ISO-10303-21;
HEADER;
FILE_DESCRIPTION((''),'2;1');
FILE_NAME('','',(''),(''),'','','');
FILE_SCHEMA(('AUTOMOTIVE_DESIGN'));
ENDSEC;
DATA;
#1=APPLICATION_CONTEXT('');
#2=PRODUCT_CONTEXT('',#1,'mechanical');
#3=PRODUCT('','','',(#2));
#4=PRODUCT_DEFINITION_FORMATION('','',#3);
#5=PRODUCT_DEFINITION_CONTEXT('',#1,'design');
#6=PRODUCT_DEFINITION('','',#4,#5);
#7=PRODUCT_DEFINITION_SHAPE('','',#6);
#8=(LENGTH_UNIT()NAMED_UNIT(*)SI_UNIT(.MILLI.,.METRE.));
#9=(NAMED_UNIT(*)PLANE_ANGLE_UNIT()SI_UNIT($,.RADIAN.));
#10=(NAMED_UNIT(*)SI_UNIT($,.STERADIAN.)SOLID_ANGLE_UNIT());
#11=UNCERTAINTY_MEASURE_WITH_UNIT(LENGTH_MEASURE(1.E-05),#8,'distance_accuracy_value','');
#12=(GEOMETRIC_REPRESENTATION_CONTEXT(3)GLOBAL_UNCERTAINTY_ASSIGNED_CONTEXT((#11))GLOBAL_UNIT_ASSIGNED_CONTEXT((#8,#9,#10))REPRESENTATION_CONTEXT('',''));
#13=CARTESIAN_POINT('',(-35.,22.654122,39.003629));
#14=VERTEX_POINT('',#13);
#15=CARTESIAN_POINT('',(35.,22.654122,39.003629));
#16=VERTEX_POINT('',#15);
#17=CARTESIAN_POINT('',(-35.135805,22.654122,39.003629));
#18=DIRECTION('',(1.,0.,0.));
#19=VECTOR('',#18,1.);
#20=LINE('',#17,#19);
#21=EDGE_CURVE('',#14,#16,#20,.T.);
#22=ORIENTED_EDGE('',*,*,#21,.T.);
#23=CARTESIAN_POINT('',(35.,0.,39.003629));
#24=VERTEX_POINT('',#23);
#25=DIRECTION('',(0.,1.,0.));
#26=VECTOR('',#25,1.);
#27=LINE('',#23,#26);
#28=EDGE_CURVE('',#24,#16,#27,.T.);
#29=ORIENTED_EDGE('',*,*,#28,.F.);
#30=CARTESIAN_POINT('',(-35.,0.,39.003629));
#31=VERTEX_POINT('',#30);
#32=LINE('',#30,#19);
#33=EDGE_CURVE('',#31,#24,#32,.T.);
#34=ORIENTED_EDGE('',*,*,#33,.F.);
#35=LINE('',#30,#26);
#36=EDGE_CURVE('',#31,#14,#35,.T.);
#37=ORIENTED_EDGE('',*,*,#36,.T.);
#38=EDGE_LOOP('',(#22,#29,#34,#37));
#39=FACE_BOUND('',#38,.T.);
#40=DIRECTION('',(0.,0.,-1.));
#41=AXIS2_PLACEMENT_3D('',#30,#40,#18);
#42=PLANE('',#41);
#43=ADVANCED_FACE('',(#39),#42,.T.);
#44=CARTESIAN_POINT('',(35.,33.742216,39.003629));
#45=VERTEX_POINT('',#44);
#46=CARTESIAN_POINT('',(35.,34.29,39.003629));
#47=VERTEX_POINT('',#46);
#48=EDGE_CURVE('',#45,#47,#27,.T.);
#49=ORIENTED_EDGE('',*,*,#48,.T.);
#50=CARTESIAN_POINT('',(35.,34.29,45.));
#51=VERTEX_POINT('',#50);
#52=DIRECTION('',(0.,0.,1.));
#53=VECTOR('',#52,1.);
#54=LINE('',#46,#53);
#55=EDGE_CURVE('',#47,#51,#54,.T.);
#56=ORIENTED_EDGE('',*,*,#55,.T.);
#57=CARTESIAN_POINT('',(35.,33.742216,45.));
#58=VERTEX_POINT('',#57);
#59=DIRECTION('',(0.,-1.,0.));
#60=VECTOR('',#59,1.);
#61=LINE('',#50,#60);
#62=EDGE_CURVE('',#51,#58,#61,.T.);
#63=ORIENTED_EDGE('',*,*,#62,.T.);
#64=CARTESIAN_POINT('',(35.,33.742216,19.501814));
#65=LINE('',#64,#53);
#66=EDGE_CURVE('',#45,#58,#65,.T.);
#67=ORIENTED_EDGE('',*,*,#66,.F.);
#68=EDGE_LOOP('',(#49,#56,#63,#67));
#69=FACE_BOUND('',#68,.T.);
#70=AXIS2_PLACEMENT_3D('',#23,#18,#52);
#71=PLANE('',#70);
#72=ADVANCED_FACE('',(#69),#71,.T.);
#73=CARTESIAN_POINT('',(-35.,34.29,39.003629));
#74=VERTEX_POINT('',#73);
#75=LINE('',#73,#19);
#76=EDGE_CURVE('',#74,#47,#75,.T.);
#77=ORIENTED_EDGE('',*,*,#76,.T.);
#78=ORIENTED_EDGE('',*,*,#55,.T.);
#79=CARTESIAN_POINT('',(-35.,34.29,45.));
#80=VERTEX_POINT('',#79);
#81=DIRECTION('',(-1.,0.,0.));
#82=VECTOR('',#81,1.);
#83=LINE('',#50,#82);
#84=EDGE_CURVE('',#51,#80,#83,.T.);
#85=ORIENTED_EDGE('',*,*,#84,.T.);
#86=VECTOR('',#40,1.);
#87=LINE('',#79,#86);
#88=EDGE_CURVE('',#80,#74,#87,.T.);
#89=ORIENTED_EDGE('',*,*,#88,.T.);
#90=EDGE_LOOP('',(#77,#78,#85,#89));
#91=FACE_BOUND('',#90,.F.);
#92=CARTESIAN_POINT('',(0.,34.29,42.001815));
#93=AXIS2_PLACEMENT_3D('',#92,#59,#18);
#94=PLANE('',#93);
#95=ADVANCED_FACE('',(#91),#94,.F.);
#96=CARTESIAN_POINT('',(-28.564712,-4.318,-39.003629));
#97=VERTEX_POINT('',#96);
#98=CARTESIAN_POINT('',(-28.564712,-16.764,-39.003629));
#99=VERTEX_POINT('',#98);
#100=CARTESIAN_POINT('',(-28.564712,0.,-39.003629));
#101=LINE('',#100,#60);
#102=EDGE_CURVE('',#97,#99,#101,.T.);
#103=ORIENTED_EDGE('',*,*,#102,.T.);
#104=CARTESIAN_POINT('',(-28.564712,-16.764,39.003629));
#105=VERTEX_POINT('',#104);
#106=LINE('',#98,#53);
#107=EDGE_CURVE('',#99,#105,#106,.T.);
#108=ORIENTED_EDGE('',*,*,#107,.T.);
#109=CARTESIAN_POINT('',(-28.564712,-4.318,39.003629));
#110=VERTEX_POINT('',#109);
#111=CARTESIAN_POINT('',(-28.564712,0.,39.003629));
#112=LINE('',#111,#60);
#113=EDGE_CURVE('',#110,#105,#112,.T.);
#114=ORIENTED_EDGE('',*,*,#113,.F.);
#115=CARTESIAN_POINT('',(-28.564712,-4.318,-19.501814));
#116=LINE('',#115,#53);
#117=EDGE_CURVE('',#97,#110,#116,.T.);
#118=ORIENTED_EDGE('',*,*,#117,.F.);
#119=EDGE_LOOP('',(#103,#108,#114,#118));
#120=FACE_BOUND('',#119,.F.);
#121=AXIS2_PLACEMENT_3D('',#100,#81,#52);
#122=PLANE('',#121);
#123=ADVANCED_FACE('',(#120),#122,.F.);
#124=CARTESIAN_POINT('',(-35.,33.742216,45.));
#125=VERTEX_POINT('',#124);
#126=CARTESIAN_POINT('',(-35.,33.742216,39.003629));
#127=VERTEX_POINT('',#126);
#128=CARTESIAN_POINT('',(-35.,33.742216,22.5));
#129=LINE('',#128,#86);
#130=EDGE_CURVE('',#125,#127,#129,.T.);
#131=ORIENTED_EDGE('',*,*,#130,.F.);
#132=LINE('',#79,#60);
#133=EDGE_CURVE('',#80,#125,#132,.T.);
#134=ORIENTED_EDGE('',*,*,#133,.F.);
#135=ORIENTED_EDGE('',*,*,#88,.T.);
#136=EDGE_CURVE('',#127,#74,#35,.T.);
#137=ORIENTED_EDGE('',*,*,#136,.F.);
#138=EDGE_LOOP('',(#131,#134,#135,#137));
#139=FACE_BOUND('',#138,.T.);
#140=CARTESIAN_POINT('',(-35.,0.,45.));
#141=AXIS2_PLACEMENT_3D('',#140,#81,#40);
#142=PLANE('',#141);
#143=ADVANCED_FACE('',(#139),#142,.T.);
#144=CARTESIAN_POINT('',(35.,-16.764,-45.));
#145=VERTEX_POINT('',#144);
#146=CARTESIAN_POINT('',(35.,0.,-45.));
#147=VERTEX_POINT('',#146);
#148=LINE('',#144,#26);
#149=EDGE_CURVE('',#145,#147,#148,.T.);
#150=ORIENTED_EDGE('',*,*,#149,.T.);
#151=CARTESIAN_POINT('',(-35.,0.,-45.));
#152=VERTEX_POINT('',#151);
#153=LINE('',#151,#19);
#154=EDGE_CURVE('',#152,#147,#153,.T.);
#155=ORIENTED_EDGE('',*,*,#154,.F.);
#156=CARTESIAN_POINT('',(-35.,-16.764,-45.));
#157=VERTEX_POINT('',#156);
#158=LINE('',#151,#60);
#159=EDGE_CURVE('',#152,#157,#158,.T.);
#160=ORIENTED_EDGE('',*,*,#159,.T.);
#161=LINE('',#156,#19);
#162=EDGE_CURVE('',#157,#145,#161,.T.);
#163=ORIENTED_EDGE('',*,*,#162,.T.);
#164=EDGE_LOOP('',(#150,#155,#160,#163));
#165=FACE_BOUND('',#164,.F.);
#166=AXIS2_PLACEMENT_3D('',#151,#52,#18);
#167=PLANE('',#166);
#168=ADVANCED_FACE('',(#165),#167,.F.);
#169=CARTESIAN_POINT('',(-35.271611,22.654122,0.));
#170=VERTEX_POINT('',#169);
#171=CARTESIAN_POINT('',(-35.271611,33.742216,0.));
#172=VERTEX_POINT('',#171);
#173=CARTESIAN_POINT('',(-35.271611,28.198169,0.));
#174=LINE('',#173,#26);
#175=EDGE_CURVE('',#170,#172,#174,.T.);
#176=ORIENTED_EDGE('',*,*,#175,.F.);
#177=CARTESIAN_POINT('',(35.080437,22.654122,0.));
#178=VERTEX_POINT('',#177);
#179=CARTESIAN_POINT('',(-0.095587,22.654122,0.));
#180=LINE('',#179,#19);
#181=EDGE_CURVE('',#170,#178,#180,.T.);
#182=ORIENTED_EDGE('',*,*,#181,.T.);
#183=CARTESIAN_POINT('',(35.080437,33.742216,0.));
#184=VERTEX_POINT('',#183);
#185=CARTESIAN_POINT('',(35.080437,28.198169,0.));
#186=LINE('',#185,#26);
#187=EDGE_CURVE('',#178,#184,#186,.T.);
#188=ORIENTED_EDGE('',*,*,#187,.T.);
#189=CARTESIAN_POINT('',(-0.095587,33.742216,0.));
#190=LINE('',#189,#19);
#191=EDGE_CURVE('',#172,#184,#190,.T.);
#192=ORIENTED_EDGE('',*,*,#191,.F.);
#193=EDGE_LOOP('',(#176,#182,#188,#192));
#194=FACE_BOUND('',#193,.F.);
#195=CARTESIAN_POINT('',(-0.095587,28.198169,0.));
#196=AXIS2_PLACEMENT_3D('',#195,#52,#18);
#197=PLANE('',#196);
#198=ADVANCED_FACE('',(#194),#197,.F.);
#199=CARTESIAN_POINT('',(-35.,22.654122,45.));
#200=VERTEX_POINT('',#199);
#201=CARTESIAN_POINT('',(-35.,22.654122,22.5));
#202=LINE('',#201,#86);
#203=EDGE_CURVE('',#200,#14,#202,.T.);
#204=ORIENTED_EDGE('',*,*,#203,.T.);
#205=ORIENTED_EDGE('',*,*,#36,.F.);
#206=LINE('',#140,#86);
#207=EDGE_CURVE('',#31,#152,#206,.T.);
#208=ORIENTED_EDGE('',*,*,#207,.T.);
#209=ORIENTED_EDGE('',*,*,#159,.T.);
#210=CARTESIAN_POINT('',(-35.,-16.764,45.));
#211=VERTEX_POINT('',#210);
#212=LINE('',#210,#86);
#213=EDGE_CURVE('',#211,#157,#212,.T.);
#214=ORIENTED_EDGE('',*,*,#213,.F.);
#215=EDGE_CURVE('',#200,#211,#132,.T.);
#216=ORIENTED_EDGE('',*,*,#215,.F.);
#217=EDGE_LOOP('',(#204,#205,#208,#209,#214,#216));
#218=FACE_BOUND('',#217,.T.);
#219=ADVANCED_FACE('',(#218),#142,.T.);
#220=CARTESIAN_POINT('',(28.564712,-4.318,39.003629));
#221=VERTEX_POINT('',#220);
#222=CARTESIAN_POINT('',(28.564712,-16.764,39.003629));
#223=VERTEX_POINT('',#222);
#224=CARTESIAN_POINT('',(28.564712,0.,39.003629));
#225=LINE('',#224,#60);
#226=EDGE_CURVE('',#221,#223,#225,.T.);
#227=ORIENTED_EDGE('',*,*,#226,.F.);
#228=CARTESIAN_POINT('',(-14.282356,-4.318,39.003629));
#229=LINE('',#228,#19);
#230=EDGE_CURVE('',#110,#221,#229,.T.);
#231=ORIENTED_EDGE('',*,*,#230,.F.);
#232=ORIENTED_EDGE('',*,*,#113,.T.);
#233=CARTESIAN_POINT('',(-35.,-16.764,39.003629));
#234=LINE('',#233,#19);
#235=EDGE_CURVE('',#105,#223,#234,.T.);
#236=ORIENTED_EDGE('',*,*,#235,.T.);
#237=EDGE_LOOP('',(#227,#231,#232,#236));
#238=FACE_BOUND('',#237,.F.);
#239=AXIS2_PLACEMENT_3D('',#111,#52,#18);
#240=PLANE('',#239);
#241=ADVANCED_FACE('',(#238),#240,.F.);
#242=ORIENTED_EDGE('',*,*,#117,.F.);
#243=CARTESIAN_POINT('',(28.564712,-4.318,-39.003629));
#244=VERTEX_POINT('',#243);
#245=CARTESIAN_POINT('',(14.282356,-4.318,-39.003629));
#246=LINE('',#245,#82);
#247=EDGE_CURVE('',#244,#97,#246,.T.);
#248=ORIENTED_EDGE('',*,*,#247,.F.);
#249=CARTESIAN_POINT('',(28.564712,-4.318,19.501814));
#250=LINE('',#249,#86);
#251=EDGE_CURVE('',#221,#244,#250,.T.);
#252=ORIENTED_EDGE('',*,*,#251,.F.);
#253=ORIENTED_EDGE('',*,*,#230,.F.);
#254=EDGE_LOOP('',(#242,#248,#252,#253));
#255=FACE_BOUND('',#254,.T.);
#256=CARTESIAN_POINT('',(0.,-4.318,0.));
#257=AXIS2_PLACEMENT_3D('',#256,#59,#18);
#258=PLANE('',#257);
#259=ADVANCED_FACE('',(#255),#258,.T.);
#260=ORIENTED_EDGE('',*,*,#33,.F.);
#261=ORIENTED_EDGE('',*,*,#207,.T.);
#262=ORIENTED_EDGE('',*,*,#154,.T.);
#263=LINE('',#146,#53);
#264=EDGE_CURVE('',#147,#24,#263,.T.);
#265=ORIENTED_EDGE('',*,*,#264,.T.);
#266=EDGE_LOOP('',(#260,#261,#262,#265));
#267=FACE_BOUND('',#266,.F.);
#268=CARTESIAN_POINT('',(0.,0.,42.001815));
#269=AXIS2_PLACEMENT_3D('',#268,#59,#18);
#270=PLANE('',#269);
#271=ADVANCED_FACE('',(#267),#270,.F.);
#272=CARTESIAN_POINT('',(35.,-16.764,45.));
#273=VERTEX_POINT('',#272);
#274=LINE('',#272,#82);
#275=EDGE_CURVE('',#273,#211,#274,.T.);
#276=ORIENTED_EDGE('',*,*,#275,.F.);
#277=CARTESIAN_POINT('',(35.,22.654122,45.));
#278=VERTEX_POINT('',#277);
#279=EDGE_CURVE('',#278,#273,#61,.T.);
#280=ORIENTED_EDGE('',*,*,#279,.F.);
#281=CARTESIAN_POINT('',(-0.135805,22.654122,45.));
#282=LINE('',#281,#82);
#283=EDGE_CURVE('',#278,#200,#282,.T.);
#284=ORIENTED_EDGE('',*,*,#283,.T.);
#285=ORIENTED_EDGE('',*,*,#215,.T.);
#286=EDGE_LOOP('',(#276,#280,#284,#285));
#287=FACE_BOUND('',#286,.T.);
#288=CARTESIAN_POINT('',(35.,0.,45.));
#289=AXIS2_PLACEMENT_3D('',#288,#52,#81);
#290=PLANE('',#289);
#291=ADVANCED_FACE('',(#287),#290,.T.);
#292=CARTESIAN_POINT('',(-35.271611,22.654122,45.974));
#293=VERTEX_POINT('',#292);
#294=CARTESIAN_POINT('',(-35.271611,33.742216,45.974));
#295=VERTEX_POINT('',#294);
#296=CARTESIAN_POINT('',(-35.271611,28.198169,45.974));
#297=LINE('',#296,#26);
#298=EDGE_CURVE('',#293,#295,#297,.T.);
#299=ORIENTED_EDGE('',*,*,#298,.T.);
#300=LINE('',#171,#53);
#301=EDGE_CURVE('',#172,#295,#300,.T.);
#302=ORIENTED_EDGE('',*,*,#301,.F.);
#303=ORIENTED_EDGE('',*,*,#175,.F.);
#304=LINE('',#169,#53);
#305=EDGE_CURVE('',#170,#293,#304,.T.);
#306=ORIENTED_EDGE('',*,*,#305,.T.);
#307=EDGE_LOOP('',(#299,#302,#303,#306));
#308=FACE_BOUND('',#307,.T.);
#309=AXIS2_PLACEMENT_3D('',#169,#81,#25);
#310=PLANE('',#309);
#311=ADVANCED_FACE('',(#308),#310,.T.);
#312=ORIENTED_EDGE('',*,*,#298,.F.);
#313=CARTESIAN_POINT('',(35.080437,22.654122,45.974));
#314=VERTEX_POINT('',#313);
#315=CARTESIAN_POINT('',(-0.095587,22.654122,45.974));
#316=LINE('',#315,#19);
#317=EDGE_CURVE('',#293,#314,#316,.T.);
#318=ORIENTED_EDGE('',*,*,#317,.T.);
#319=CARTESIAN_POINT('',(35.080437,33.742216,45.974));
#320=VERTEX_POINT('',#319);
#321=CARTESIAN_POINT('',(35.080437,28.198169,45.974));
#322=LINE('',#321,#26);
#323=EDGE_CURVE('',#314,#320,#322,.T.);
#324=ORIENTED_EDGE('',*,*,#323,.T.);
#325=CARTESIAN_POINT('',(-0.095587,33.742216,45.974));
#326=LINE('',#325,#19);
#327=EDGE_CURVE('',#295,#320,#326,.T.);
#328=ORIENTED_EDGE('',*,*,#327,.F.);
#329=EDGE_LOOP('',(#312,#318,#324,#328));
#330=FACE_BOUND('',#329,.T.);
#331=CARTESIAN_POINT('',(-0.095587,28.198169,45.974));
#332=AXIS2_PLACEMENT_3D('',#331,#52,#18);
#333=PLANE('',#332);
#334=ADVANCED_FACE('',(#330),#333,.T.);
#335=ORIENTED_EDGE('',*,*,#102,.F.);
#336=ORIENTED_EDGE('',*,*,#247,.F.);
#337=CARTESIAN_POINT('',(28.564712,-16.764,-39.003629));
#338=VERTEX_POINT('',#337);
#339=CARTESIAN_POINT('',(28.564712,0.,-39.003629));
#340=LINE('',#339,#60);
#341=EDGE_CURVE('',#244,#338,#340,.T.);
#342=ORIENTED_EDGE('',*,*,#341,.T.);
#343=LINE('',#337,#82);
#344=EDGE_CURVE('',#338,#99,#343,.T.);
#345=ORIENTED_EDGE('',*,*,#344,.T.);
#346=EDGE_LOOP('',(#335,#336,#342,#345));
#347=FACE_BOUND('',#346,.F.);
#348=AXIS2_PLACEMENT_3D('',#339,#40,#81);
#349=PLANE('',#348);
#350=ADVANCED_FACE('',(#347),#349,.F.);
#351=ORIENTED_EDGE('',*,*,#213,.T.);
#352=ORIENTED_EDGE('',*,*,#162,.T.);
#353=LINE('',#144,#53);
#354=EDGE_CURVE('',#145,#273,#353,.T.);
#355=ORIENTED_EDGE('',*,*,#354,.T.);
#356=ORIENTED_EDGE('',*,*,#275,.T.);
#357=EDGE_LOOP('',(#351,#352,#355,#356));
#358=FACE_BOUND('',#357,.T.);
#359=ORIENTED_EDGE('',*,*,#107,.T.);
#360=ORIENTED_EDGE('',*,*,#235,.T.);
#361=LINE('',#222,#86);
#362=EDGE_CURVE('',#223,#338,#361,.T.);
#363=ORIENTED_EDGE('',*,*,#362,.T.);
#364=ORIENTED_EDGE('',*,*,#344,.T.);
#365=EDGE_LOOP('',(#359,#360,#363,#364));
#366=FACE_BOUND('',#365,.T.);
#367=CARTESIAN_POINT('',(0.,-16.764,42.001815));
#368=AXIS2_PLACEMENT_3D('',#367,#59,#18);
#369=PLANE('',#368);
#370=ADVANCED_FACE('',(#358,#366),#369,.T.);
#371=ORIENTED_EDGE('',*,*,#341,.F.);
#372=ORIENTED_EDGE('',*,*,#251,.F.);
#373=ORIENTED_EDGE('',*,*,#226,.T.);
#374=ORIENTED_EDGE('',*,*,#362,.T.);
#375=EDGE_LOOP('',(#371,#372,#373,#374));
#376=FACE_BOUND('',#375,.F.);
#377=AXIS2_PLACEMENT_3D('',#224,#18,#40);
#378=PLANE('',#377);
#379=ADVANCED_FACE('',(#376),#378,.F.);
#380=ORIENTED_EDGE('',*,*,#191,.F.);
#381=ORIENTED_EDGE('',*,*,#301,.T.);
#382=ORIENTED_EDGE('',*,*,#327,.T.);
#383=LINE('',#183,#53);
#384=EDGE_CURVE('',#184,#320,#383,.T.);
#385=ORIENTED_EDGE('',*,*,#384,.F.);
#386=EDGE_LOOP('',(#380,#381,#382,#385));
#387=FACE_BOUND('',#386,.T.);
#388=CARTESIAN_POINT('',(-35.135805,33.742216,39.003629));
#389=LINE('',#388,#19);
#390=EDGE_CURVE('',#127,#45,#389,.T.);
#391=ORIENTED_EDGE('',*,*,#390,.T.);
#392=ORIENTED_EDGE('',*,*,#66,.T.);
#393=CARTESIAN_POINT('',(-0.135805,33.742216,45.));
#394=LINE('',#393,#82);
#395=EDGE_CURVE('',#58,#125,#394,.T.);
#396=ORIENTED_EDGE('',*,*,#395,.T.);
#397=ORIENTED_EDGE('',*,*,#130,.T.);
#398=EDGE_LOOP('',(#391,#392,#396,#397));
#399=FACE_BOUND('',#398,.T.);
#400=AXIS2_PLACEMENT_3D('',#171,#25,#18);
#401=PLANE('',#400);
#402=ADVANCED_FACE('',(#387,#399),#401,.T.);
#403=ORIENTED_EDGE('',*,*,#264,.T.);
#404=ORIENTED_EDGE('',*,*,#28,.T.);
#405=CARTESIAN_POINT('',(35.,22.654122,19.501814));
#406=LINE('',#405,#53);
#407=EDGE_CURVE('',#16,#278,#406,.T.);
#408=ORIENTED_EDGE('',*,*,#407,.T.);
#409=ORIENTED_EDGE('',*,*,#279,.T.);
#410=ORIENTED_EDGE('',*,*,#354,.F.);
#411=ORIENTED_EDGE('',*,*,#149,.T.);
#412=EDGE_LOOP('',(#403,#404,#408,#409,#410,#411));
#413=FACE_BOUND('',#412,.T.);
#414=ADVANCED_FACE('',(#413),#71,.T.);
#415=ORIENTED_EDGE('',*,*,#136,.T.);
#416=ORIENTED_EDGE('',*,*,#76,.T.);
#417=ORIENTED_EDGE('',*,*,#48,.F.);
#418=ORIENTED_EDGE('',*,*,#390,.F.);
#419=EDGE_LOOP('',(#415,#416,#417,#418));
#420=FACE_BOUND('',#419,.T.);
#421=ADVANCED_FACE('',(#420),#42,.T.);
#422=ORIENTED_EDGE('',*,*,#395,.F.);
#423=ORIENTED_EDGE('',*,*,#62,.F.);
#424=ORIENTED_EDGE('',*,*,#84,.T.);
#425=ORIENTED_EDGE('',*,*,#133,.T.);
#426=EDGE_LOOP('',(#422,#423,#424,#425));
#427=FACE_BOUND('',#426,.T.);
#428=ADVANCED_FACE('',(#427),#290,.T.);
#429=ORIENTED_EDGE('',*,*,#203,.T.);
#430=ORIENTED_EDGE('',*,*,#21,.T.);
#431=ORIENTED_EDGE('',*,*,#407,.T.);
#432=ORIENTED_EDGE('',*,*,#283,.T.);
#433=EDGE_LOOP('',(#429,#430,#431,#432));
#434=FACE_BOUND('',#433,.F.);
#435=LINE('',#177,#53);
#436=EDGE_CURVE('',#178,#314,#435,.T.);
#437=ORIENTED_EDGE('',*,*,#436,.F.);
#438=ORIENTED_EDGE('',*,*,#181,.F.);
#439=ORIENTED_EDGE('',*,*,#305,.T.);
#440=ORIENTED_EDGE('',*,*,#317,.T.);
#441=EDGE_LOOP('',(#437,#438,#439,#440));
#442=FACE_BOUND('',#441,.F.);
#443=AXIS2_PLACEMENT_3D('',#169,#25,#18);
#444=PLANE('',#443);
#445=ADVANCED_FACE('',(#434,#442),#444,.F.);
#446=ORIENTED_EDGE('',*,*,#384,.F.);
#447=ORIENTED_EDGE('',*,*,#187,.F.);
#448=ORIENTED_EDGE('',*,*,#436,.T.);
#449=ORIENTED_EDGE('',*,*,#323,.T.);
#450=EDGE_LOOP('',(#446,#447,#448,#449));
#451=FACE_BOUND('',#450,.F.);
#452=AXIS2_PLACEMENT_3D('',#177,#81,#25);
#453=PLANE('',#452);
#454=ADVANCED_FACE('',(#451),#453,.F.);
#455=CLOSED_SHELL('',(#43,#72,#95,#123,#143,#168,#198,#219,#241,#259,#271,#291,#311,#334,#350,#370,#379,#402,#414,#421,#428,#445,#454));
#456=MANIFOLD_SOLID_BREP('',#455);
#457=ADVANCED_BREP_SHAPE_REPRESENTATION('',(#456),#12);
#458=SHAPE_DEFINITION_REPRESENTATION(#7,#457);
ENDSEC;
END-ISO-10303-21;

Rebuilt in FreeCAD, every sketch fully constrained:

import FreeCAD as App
import Part
import Sketcher
from FreeCAD import Vector
Q = App.Units.Quantity


def add_polygon(sketch, points):
    """Adds a closed chain of lines whose ends are joined by coincident constraints."""
    first, n = sketch.GeometryCount, len(points)
    for a, b in zip(points, points[1:] + points[:1]):
        sketch.addGeometry(Part.LineSegment(App.Vector(*a, 0), App.Vector(*b, 0)), False)
    for i in range(n):
        sketch.addConstraint(Sketcher.Constraint("Coincident", first + i, 2, first + (i + 1) % n, 1))

doc = App.newDocument("Part")
body = doc.addObject("PartDesign::Body", "Body")

# Sketch on XZ plane
sketch1 = body.newObject("Sketcher::SketchObject", "Sketch")
sketch1.AttachmentSupport = (doc.getObject("XZ_Plane"), [""])
sketch1.MapMode = "FlatFace"
add_polygon(sketch1, [(35, 45), (-35, 45), (-35, -45), (35, -45)])  # lines 0-3
add_polygon(sketch1, [(-29, 39), (29, 39), (29, -39), (-29, -39)])  # lines 4-7
sketch1.addConstraint(Sketcher.Constraint("Horizontal", 0))
sketch1.addConstraint(Sketcher.Constraint("Vertical", 1))
sketch1.addConstraint(Sketcher.Constraint("Horizontal", 2))
sketch1.addConstraint(Sketcher.Constraint("Vertical", 3))
sketch1.addConstraint(Sketcher.Constraint("Horizontal", 4))
sketch1.addConstraint(Sketcher.Constraint("Vertical", 5))
sketch1.addConstraint(Sketcher.Constraint("Horizontal", 6))
sketch1.addConstraint(Sketcher.Constraint("Vertical", 7))
sketch1.addConstraint(Sketcher.Constraint("Symmetric", 0, 2, 2, 2, -1, 1))
sketch1.addConstraint(Sketcher.Constraint("Symmetric", 4, 2, 6, 2, -1, 1))
sketch1.addConstraint(Sketcher.Constraint("DistanceX", 0, 2, 0, 1, 70.0))
sketch1.addConstraint(Sketcher.Constraint("DistanceY", 1, 2, 1, 1, 90.0))
sketch1.addConstraint(Sketcher.Constraint("DistanceX", 4, 1, 4, 2, 57.129424))
sketch1.addConstraint(Sketcher.Constraint("DistanceY", 5, 2, 5, 1, 78.007258))
pad1 = body.newObject("PartDesign::Pad", "Pad")
pad1.Profile = sketch1
pad1.Length = Q("0.66 in")

# Sketch on XZ plane
sketch2 = body.newObject("Sketcher::SketchObject", "Sketch001")
sketch2.AttachmentSupport = (doc.getObject("XZ_Plane"), [""])
sketch2.MapMode = "FlatFace"
add_polygon(sketch2, [(-35, 45), (-35, -45), (35, -45), (35, 45)])  # lines 0-3
sketch2.addConstraint(Sketcher.Constraint("Vertical", 0))
sketch2.addConstraint(Sketcher.Constraint("Horizontal", 1))
sketch2.addConstraint(Sketcher.Constraint("Vertical", 2))
sketch2.addConstraint(Sketcher.Constraint("Horizontal", 3))
sketch2.addConstraint(Sketcher.Constraint("Symmetric", 0, 2, 2, 2, -1, 1))
sketch2.addConstraint(Sketcher.Constraint("DistanceX", 1, 1, 1, 2, 70.0))
sketch2.addConstraint(Sketcher.Constraint("DistanceY", 0, 2, 0, 1, 90.0))
pad2 = body.newObject("PartDesign::Pad", "Pad001")
pad2.Profile = sketch2
pad2.Length = Q("0.17 in")

# Sketch on XZ plane
sketch3 = body.newObject("Sketcher::SketchObject", "Sketch002")
sketch3.AttachmentSupport = (doc.getObject("XZ_Plane"), [""])
sketch3.MapMode = "FlatFace"
add_polygon(sketch3, [(35, 39), (35, 45), (-35, 45), (-35, 39)])  # lines 0-3
sketch3.addConstraint(Sketcher.Constraint("Vertical", 0))
sketch3.addConstraint(Sketcher.Constraint("Horizontal", 1))
sketch3.addConstraint(Sketcher.Constraint("Vertical", 2))
sketch3.addConstraint(Sketcher.Constraint("Horizontal", 3))
sketch3.addConstraint(Sketcher.Constraint("DistanceX", 1, 2, 1, 1, 70.0))
sketch3.addConstraint(Sketcher.Constraint("DistanceY", 0, 1, 0, 2, 5.996371))
sketch3.addConstraint(Sketcher.Constraint("DistanceX", -1, 1, 0, 2, 35.0))
sketch3.addConstraint(Sketcher.Constraint("DistanceY", -1, 1, 0, 2, 45.0))
pad3 = body.newObject("PartDesign::Pad", "Pad002")
pad3.Profile = sketch3
pad3.Length = Q("1.35 in")
pad3.Reversed = True

# Sketch on XY plane
sketch4 = body.newObject("Sketcher::SketchObject", "Sketch003")
sketch4.AttachmentSupport = (doc.getObject("XY_Plane"), [""])
sketch4.MapMode = "FlatFace"
add_polygon(sketch4, [(-35, 34), (-35, 23), (35, 23), (35, 34)])  # lines 0-3
sketch4.addConstraint(Sketcher.Constraint("Vertical", 0))
sketch4.addConstraint(Sketcher.Constraint("Horizontal", 1))
sketch4.addConstraint(Sketcher.Constraint("Vertical", 2))
sketch4.addConstraint(Sketcher.Constraint("Horizontal", 3))
sketch4.addConstraint(Sketcher.Constraint("DistanceX", 1, 1, 1, 2, 70.352048))
sketch4.addConstraint(Sketcher.Constraint("DistanceY", 0, 2, 0, 1, 11.088093))
sketch4.addConstraint(Sketcher.Constraint("DistanceX", 0, 2, -1, 1, 35.271611))
sketch4.addConstraint(Sketcher.Constraint("DistanceY", -1, 1, 0, 2, 22.654122))
pad4 = body.newObject("PartDesign::Pad", "Pad003")
pad4.Profile = sketch4
pad4.Length = Q("1.81 in")

doc.recompute()
